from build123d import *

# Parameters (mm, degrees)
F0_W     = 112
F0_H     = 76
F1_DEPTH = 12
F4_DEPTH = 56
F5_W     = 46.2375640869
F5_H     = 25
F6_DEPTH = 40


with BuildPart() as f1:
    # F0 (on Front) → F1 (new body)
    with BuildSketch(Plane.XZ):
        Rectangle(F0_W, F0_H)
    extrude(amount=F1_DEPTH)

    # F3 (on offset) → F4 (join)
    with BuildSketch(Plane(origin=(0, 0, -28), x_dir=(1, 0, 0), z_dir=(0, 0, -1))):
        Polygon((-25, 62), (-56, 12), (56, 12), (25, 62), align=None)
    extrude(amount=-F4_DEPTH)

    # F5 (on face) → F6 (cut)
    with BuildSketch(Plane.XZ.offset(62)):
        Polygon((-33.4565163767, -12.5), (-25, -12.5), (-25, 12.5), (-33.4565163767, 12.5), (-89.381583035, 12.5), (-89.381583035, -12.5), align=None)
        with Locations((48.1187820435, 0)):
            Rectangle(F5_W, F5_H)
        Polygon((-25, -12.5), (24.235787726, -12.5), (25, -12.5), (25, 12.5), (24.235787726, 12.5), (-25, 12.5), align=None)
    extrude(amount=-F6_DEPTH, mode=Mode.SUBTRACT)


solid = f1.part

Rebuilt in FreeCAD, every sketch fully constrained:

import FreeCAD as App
import Part
import Sketcher
Q = App.Units.Quantity

doc = App.newDocument("Part")
body = doc.addObject("PartDesign::Body", "Body")

sketch1 = body.newObject("Sketcher::SketchObject", "Sketch")
sketch1.AttachmentSupport = (doc.getObject("XZ_Plane"), [""])
sketch1.MapMode = "FlatFace"
sketch1.addGeometry([
    Part.LineSegment(App.Vector(-56, 38, 0), App.Vector(-56, -38, 0)),
    Part.LineSegment(App.Vector(-56, -38, 0), App.Vector(56, -38, 0)),
    Part.LineSegment(App.Vector(56, -38, 0), App.Vector(56, 38, 0)),
    Part.LineSegment(App.Vector(56, 38, 0), App.Vector(-56, 38, 0)),
], False)
sketch1.addConstraint([
    Sketcher.Constraint("Coincident", 0, 2, 1, 1),
    Sketcher.Constraint("Coincident", 1, 2, 2, 1),
    Sketcher.Constraint("Coincident", 2, 2, 3, 1),
    Sketcher.Constraint("Coincident", 3, 2, 0, 1),
    Sketcher.Constraint("Vertical", 0),
    Sketcher.Constraint("Horizontal", 1),
    Sketcher.Constraint("Vertical", 2),
    Sketcher.Constraint("Horizontal", 3),
    Sketcher.Constraint("Symmetric", 0, 2, 2, 2, -1, 1),
    Sketcher.Constraint("DistanceX", 1, 1, 1, 2, Q("112 mm")),
    Sketcher.Constraint("DistanceY", 0, 2, 0, 1, Q("76 mm")),
])
pad1 = body.newObject("PartDesign::Pad", "Pad")
pad1.Profile = sketch1
pad1.Length = 12

sketch2 = body.newObject("Sketcher::SketchObject", "Sketch001")
sketch2.AttachmentSupport = (doc.getObject("XY_Plane"), [""])
sketch2.MapMode = "FlatFace"
sketch2.AttachmentOffset = App.Placement(App.Vector(0, 0, -28), App.Rotation())
sketch2.addGeometry([
    Part.LineSegment(App.Vector(-25, -62, 0), App.Vector(-56, -12, 0)),
    Part.LineSegment(App.Vector(-56, -12, 0), App.Vector(56, -12, 0)),
    Part.LineSegment(App.Vector(56, -12, 0), App.Vector(25, -62, 0)),
    Part.LineSegment(App.Vector(25, -62, 0), App.Vector(-25, -62, 0)),
], False)
sketch2.addConstraint([
    Sketcher.Constraint("Coincident", 0, 2, 1, 1),
    Sketcher.Constraint("Coincident", 1, 2, 2, 1),
    Sketcher.Constraint("Coincident", 2, 2, 3, 1),
    Sketcher.Constraint("Coincident", 3, 2, 0, 1),
    Sketcher.Constraint("Horizontal", 1),
    Sketcher.Constraint("Horizontal", 3),
    Sketcher.Constraint("Equal", 0, 2),
    Sketcher.Constraint("DistanceX", 1, 1, 1, 2, Q("112 mm")),
    Sketcher.Constraint("DistanceX", 3, 2, 3, 1, Q("50 mm")),
    Sketcher.Constraint("DistanceX", 0, 2, -1, 1, Q("56 mm")),
    Sketcher.Constraint("DistanceY", 0, 2, -1, 1, Q("12 mm")),
    Sketcher.Constraint("DistanceY", 2, 2, -1, 1, Q("62 mm")),
])
pad2 = body.newObject("PartDesign::Pad", "Pad001")
pad2.Profile = sketch2
pad2.Length = 56

sketch3 = body.newObject("Sketcher::SketchObject", "Sketch002")
sketch3.AttachmentSupport = (doc.getObject("XZ_Plane"), [""])
sketch3.MapMode = "FlatFace"
sketch3.AttachmentOffset = App.Placement(App.Vector(0, 0, 62), App.Rotation())
sketch3.addGeometry([
    Part.LineSegment(App.Vector(-89.381583, 12.5, 0), App.Vector(-89.381583, -12.5, 0)),
    Part.LineSegment(App.Vector(-89.381583, -12.5, 0), App.Vector(71.237564, -12.5, 0)),
    Part.LineSegment(App.Vector(71.237564, -12.5, 0), App.Vector(71.237564, 12.5, 0)),
    Part.LineSegment(App.Vector(71.237564, 12.5, 0), App.Vector(-89.381583, 12.5, 0)),
], False)
sketch3.addConstraint([
    Sketcher.Constraint("Coincident", 0, 2, 1, 1),
    Sketcher.Constraint("Coincident", 1, 2, 2, 1),
    Sketcher.Constraint("Coincident", 2, 2, 3, 1),
    Sketcher.Constraint("Coincident", 3, 2, 0, 1),
    Sketcher.Constraint("Vertical", 0),
    Sketcher.Constraint("Horizontal", 1),
    Sketcher.Constraint("Vertical", 2),
    Sketcher.Constraint("Horizontal", 3),
    Sketcher.Constraint("DistanceY", 0, 2, 0, 1, Q("25 mm")),
    Sketcher.Constraint("DistanceY", 0, 2, -1, 1, Q("12.5 mm")),
    Sketcher.Constraint("DistanceX", 1, 1, 1, 2, Q("160.619147 mm")),
    Sketcher.Constraint("DistanceX", 0, 2, -1, 1, Q("89.381583 mm")),
])
pocket1 = body.newObject("PartDesign::Pocket", "Pocket")
pocket1.Profile = sketch3
pocket1.Length = 40

doc.recompute()
